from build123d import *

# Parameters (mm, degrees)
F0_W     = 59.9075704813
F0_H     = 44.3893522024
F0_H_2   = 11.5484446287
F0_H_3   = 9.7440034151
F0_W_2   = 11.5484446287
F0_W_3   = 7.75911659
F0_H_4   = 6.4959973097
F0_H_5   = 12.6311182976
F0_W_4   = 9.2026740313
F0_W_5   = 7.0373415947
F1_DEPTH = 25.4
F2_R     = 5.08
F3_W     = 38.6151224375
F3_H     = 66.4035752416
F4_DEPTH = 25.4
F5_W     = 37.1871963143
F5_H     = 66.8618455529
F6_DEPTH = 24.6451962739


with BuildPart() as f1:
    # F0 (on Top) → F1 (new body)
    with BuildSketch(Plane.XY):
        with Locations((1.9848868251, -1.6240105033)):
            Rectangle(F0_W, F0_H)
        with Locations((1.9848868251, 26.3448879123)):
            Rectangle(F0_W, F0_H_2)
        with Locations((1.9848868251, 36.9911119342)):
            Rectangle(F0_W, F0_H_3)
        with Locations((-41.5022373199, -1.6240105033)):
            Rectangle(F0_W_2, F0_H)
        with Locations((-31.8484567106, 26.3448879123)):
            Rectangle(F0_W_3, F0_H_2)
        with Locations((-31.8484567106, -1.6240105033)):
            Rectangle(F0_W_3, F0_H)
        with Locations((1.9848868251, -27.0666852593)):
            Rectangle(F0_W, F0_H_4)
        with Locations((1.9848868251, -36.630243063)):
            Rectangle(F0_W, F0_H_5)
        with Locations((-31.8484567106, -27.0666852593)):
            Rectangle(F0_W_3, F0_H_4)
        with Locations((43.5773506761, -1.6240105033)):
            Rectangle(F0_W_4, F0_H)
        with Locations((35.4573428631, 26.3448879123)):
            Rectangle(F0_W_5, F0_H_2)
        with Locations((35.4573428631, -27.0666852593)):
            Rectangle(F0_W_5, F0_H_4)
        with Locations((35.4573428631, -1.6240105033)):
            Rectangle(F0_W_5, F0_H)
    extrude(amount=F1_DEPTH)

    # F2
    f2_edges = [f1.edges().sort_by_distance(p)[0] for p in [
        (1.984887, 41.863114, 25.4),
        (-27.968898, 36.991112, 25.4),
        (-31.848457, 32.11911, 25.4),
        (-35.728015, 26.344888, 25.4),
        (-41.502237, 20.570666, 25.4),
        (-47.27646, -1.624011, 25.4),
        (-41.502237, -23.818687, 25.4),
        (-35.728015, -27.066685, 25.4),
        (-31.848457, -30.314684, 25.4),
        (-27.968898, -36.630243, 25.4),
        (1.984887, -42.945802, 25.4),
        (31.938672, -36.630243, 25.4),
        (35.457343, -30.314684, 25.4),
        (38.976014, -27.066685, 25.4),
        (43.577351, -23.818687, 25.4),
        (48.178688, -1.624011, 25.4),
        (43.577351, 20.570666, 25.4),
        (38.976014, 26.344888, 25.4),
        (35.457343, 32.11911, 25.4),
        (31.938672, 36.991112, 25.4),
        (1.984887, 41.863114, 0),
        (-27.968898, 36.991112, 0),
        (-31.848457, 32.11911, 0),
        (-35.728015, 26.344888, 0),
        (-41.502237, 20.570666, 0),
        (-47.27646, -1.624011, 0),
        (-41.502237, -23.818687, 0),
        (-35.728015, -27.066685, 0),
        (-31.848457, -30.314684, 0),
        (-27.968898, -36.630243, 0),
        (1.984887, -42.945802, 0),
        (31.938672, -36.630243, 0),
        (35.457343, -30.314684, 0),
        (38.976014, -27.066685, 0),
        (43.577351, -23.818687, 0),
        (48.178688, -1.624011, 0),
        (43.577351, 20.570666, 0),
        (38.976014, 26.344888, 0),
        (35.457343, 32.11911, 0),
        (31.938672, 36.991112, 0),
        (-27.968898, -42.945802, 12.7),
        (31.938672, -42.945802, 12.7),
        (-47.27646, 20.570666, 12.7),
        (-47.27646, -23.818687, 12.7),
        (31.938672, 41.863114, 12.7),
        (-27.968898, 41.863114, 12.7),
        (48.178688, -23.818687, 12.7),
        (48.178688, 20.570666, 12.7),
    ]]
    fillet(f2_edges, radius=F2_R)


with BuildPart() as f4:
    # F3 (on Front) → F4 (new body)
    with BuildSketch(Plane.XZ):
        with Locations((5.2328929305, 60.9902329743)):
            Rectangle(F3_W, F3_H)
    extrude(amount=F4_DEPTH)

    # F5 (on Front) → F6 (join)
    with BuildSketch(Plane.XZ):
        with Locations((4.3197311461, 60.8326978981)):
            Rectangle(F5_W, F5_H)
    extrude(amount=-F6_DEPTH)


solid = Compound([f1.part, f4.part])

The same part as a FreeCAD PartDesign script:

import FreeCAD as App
import Part
import Sketcher
from FreeCAD import Vector
Q = App.Units.Quantity


def edges_at(feature, points):
    """Names of the edges that pass closest to the given points."""
    edges = feature.Shape.Edges
    near = lambda p: min(range(len(edges)), key=lambda i: edges[i].distToShape(Part.Vertex(*p))[0])
    return sorted({f"Edge{near(p) + 1}" for p in points})

doc = App.newDocument("Part")
body = doc.addObject("PartDesign::Body", "Body")

sketch1 = body.newObject("Sketcher::SketchObject", "Sketch")
sketch1.AttachmentSupport = (doc.getObject("XY_Plane"), [""])
sketch1.MapMode = "FlatFace"
sketch1.addGeometry([
    Part.LineSegment(Vector(31.938672, 41.863114, 0), Vector(-27.968898, 41.863114, 0)),
    Part.LineSegment(Vector(-27.968898, 41.863114, 0), Vector(-27.968898, 32.11911, 0)),
    Part.LineSegment(Vector(-27.968898, 32.11911, 0), Vector(-35.728015, 32.11911, 0)),
    Part.LineSegment(Vector(-35.728015, 32.11911, 0), Vector(-35.728015, 20.570666, 0)),
    Part.LineSegment(Vector(-35.728015, 20.570666, 0), Vector(-47.27646, 20.570666, 0)),
    Part.LineSegment(Vector(-47.27646, 20.570666, 0), Vector(-47.27646, -23.818687, 0)),
    Part.LineSegment(Vector(-47.27646, -23.818687, 0), Vector(-35.728015, -23.818687, 0)),
    Part.LineSegment(Vector(-35.728015, -23.818687, 0), Vector(-35.728015, -30.314684, 0)),
    Part.LineSegment(Vector(-35.728015, -30.314684, 0), Vector(-27.968898, -30.314684, 0)),
    Part.LineSegment(Vector(-27.968898, -30.314684, 0), Vector(-27.968898, -42.945802, 0)),
    Part.LineSegment(Vector(-27.968898, -42.945802, 0), Vector(31.938672, -42.945802, 0)),
    Part.LineSegment(Vector(31.938672, -42.945802, 0), Vector(31.938672, -30.314684, 0)),
    Part.LineSegment(Vector(31.938672, -30.314684, 0), Vector(38.976014, -30.314684, 0)),
    Part.LineSegment(Vector(38.976014, -30.314684, 0), Vector(38.976014, -23.818687, 0)),
    Part.LineSegment(Vector(38.976014, -23.818687, 0), Vector(48.178688, -23.818687, 0)),
    Part.LineSegment(Vector(48.178688, -23.818687, 0), Vector(48.178688, 20.570666, 0)),
    Part.LineSegment(Vector(48.178688, 20.570666, 0), Vector(38.976014, 20.570666, 0)),
    Part.LineSegment(Vector(38.976014, 20.570666, 0), Vector(38.976014, 32.11911, 0)),
    Part.LineSegment(Vector(38.976014, 32.11911, 0), Vector(31.938672, 32.11911, 0)),
    Part.LineSegment(Vector(31.938672, 32.11911, 0), Vector(31.938672, 41.863114, 0)),
], False)
sketch1.addConstraint([
    Sketcher.Constraint("Coincident", 0, 2, 1, 1),
    Sketcher.Constraint("Coincident", 1, 2, 2, 1),
    Sketcher.Constraint("Coincident", 2, 2, 3, 1),
    Sketcher.Constraint("Coincident", 3, 2, 4, 1),
    Sketcher.Constraint("Coincident", 4, 2, 5, 1),
    Sketcher.Constraint("Coincident", 5, 2, 6, 1),
    Sketcher.Constraint("Coincident", 6, 2, 7, 1),
    Sketcher.Constraint("Coincident", 7, 2, 8, 1),
    Sketcher.Constraint("Coincident", 8, 2, 9, 1),
    Sketcher.Constraint("Coincident", 9, 2, 10, 1),
    Sketcher.Constraint("Coincident", 10, 2, 11, 1),
    Sketcher.Constraint("Coincident", 11, 2, 12, 1),
    Sketcher.Constraint("Coincident", 12, 2, 13, 1),
    Sketcher.Constraint("Coincident", 13, 2, 14, 1),
    Sketcher.Constraint("Coincident", 14, 2, 15, 1),
    Sketcher.Constraint("Coincident", 15, 2, 16, 1),
    Sketcher.Constraint("Coincident", 16, 2, 17, 1),
    Sketcher.Constraint("Coincident", 17, 2, 18, 1),
    Sketcher.Constraint("Coincident", 18, 2, 19, 1),
    Sketcher.Constraint("Coincident", 19, 2, 0, 1),
    Sketcher.Constraint("Horizontal", 0),
    Sketcher.Constraint("Vertical", 1),
    Sketcher.Constraint("Horizontal", 2),
    Sketcher.Constraint("Vertical", 3),
    Sketcher.Constraint("Horizontal", 4),
    Sketcher.Constraint("Vertical", 5),
    Sketcher.Constraint("Horizontal", 6),
    Sketcher.Constraint("Vertical", 7),
    Sketcher.Constraint("Horizontal", 8),
    Sketcher.Constraint("Vertical", 9),
    Sketcher.Constraint("Horizontal", 10),
    Sketcher.Constraint("Vertical", 11),
    Sketcher.Constraint("Horizontal", 12),
    Sketcher.Constraint("Vertical", 13),
    Sketcher.Constraint("Horizontal", 14),
    Sketcher.Constraint("Vertical", 15),
    Sketcher.Constraint("Horizontal", 16),
    Sketcher.Constraint("Vertical", 17),
    Sketcher.Constraint("Horizontal", 18),
    Sketcher.Constraint("Vertical", 19),
    Sketcher.Constraint("Horizontal", 8, 2, 11, 2),
    Sketcher.Constraint("Horizontal", 6, 2, 13, 2),
    Sketcher.Constraint("Horizontal", 4, 2, 15, 2),
    Sketcher.Constraint("Horizontal", 2, 2, 17, 2),
    Sketcher.Constraint("Vertical", 3, 2, 6, 2),
    Sketcher.Constraint("Vertical", 1, 2, 8, 2),
    Sketcher.Constraint("Vertical", 13, 2, 16, 2),
    Sketcher.Constraint("Vertical", 11, 2, 18, 2),
    Sketcher.Constraint("Equal", 6, 3),
    Sketcher.Constraint("DistanceX", 0, 2, 0, 1, 59.90757),
    Sketcher.Constraint("DistanceX", 12, 1, 12, 2, 7.037342),
    Sketcher.Constraint("DistanceY", 9, 2, 9, 1, 12.631118),
    Sketcher.Constraint("DistanceX", 0, 2, -1, 1, 27.968898),
    Sketcher.Constraint("DistanceY", 5, 2, 0, 2, 65.6818),
    Sketcher.Constraint("DistanceX", 2, 2, 2, 1, 7.759117),
    Sketcher.Constraint("DistanceX", 4, 2, 4, 1, 11.548445),
    Sketcher.Constraint("DistanceX", 14, 1, 14, 2, 9.202674),
    Sketcher.Constraint("DistanceY", 1, 2, 1, 1, 9.744003),
    Sketcher.Constraint("DistanceY", 7, 2, 7, 1, 6.495997),
    Sketcher.Constraint("DistanceY", -1, 1, 1, 2, 32.11911),
])
pad1 = body.newObject("PartDesign::Pad", "Pad")
pad1.Profile = sketch1
pad1.Length = Q("1 in")
doc.recompute()

fillet = body.newObject("PartDesign::Fillet", "Fillet")
fillet.Base = (pad1, edges_at(pad1, [
    (1.985, 41.863, 25.4),
    (-27.969, 36.991, 25.4),
    (-31.848, 32.119, 25.4),
    (-35.728, 26.345, 25.4),
    (-41.502, 20.571, 25.4),
    (-47.276, -1.624, 25.4),
    (-41.502, -23.819, 25.4),
    (-35.728, -27.067, 25.4),
    (-31.848, -30.315, 25.4),
    (-27.969, -36.63, 25.4),
    (1.985, -42.946, 25.4),
    (31.939, -36.63, 25.4),
    (35.457, -30.315, 25.4),
    (38.976, -27.067, 25.4),
    (43.577, -23.819, 25.4),
    (48.179, -1.624, 25.4),
    (43.577, 20.571, 25.4),
    (38.976, 26.345, 25.4),
    (35.457, 32.119, 25.4),
    (31.939, 36.991, 25.4),
    (1.985, 41.863, 0),
    (-27.969, 36.991, 0),
    (-31.848, 32.119, 0),
    (-35.728, 26.345, 0),
    (-41.502, 20.571, 0),
    (-47.276, -1.624, 0),
    (-41.502, -23.819, 0),
    (-35.728, -27.067, 0),
    (-31.848, -30.315, 0),
    (-27.969, -36.63, 0),
    (1.985, -42.946, 0),
    (31.939, -36.63, 0),
    (35.457, -30.315, 0),
    (38.976, -27.067, 0),
    (43.577, -23.819, 0),
    (48.179, -1.624, 0),
    (43.577, 20.571, 0),
    (38.976, 26.345, 0),
    (35.457, 32.119, 0),
    (31.939, 36.991, 0),
    (-27.969, -42.946, 12.7),
    (31.939, -42.946, 12.7),
    (-47.276, 20.571, 12.7),
    (-47.276, -23.819, 12.7),
    (31.939, 41.863, 12.7),
    (-27.969, 41.863, 12.7),
    (48.179, -23.819, 12.7),
    (48.179, 20.571, 12.7),
]))
fillet.Radius = Q("0.2 in")
body2 = doc.addObject("PartDesign::Body", "Body001")

sketch2 = body2.newObject("Sketcher::SketchObject", "Sketch001")
sketch2.AttachmentSupport = (doc.getObject("XZ_Plane001"), [""])
sketch2.MapMode = "FlatFace"
sketch2.addGeometry([
    Part.LineSegment(Vector(-14.074668, 94.192021, 0), Vector(-14.074668, 27.788445, 0)),
    Part.LineSegment(Vector(-14.074668, 27.788445, 0), Vector(24.540454, 27.788445, 0)),
    Part.LineSegment(Vector(24.540454, 27.788445, 0), Vector(24.540454, 94.192021, 0)),
    Part.LineSegment(Vector(24.540454, 94.192021, 0), Vector(-14.074668, 94.192021, 0)),
], False)
sketch2.addConstraint([
    Sketcher.Constraint("Coincident", 0, 2, 1, 1),
    Sketcher.Constraint("Coincident", 1, 2, 2, 1),
    Sketcher.Constraint("Coincident", 2, 2, 3, 1),
    Sketcher.Constraint("Coincident", 3, 2, 0, 1),
    Sketcher.Constraint("Vertical", 0),
    Sketcher.Constraint("Horizontal", 1),
    Sketcher.Constraint("Vertical", 2),
    Sketcher.Constraint("Horizontal", 3),
    Sketcher.Constraint("DistanceX", 1, 1, 1, 2, 38.615122),
    Sketcher.Constraint("DistanceY", 0, 2, 0, 1, 66.403575),
    Sketcher.Constraint("DistanceX", 0, 2, -1, 1, 14.074668),
    Sketcher.Constraint("DistanceY", -1, 1, 2, 2, 94.192021),
])
pad2 = body2.newObject("PartDesign::Pad", "Pad001")
pad2.Profile = sketch2
pad2.Length = Q("1 in")

sketch3 = body2.newObject("Sketcher::SketchObject", "Sketch002")
sketch3.AttachmentSupport = (doc.getObject("XZ_Plane001"), [""])
sketch3.MapMode = "FlatFace"
sketch3.addGeometry([
    Part.LineSegment(Vector(-14.273867, 94.263621, 0), Vector(-14.273867, 27.401775, 0)),
    Part.LineSegment(Vector(-14.273867, 27.401775, 0), Vector(22.913329, 27.401775, 0)),
    Part.LineSegment(Vector(22.913329, 27.401775, 0), Vector(22.913329, 94.263621, 0)),
    Part.LineSegment(Vector(22.913329, 94.263621, 0), Vector(-14.273867, 94.263621, 0)),
], False)
sketch3.addConstraint([
    Sketcher.Constraint("Coincident", 0, 2, 1, 1),
    Sketcher.Constraint("Coincident", 1, 2, 2, 1),
    Sketcher.Constraint("Coincident", 2, 2, 3, 1),
    Sketcher.Constraint("Coincident", 3, 2, 0, 1),
    Sketcher.Constraint("Vertical", 0),
    Sketcher.Constraint("Horizontal", 1),
    Sketcher.Constraint("Vertical", 2),
    Sketcher.Constraint("Horizontal", 3),
    Sketcher.Constraint("DistanceX", 1, 1, 1, 2, 37.187196),
    Sketcher.Constraint("DistanceY", 0, 2, 0, 1, 66.861846),
    Sketcher.Constraint("DistanceX", -1, 1, 1, 2, 22.913329),
    Sketcher.Constraint("DistanceY", -1, 1, 2, 2, 94.263621),
])
pad3 = body2.newObject("PartDesign::Pad", "Pad002")
pad3.Profile = sketch3
pad3.Length = 24.645196
pad3.Reversed = True

doc.recompute()
